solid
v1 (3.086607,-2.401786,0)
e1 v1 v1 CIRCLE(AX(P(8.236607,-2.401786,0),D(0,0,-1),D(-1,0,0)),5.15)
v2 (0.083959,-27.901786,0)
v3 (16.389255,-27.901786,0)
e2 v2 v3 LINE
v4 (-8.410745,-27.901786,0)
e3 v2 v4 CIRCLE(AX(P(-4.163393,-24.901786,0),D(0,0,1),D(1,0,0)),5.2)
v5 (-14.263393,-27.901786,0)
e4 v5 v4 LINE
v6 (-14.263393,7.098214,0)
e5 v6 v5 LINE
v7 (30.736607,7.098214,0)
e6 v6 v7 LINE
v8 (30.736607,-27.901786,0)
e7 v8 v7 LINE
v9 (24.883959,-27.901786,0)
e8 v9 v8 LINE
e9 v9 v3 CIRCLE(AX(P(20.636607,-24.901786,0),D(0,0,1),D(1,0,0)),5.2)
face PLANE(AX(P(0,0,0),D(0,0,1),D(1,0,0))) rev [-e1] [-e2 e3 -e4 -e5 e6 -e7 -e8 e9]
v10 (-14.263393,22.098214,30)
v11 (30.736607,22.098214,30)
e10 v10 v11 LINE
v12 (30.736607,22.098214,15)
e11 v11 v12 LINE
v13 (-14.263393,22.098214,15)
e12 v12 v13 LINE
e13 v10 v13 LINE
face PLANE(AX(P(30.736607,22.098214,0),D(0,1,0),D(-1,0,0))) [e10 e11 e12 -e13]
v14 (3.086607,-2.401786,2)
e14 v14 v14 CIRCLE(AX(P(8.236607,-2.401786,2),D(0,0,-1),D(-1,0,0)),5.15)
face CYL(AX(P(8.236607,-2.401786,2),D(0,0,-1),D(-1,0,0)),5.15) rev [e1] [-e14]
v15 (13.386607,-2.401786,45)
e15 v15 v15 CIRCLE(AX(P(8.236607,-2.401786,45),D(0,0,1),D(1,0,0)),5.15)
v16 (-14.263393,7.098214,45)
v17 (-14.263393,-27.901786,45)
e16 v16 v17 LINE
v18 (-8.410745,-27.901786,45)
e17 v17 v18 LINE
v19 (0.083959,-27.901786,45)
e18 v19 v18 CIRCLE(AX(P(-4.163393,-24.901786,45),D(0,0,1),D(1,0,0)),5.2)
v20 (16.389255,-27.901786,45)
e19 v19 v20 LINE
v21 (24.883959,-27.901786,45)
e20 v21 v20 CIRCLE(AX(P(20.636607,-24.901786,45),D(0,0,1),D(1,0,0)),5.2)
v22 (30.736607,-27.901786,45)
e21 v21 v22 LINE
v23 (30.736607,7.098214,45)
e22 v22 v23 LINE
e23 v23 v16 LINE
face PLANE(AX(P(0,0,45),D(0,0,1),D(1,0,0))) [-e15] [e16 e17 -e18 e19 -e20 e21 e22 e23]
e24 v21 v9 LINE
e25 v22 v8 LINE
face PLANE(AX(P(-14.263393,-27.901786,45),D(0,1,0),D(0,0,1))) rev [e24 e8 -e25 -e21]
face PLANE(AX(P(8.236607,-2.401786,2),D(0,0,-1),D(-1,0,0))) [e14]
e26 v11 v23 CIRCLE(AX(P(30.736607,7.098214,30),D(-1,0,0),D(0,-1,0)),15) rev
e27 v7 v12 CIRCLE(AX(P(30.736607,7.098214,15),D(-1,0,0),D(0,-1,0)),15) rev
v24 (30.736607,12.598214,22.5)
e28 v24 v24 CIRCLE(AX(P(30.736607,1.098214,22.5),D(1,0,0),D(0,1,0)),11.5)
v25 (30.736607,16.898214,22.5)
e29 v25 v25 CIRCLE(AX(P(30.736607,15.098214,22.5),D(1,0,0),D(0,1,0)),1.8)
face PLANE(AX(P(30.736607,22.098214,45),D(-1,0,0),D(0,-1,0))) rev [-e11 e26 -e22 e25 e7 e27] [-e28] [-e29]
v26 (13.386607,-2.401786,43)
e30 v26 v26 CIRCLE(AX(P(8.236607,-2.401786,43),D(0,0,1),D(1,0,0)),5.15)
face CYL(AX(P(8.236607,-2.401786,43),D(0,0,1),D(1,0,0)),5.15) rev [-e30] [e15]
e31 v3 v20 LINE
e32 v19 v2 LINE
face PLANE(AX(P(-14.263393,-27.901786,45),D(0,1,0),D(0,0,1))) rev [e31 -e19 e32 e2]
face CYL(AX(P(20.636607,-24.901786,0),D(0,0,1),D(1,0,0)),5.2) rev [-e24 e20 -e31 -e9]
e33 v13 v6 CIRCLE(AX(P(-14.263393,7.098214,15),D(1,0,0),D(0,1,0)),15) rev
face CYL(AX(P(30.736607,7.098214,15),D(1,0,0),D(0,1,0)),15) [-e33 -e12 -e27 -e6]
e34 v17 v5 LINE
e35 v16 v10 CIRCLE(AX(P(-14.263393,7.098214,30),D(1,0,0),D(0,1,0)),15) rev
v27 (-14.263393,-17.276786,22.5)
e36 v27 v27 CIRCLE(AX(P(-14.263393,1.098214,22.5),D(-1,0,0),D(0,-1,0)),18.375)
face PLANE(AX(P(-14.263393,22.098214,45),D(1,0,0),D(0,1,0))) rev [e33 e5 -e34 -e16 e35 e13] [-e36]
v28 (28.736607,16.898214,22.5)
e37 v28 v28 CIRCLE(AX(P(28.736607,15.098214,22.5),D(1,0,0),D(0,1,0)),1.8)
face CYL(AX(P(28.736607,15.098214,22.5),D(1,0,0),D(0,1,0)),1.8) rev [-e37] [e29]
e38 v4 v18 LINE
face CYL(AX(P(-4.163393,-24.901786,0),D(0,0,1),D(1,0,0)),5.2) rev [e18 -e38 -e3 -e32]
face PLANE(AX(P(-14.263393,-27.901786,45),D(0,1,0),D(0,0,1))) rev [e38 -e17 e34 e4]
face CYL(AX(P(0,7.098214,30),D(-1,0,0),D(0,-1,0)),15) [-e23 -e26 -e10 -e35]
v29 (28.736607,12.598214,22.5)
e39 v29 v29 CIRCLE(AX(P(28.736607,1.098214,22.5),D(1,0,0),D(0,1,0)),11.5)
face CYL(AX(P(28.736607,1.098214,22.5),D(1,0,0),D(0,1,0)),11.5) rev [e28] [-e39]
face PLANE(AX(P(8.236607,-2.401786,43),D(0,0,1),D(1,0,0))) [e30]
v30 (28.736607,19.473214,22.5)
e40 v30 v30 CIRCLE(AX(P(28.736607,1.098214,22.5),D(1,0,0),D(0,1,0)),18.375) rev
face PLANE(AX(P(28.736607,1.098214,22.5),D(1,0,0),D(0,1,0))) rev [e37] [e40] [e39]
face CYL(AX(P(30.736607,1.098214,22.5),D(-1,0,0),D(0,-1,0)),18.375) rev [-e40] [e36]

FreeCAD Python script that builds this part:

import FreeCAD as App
import Part
import Sketcher
Q = App.Units.Quantity


def edges_at(feature, points):
    """Names of the edges that pass closest to the given points."""
    edges = feature.Shape.Edges
    near = lambda p: min(range(len(edges)), key=lambda i: edges[i].distToShape(Part.Vertex(*p))[0])
    return sorted({f"Edge{near(p) + 1}" for p in points})


def add_polygon(sketch, points):
    """Adds a closed chain of lines whose ends are joined by coincident constraints."""
    first, n = sketch.GeometryCount, len(points)
    for a, b in zip(points, points[1:] + points[:1]):
        sketch.addGeometry(Part.LineSegment(App.Vector(*a, 0), App.Vector(*b, 0)), False)
    for i in range(n):
        sketch.addConstraint(Sketcher.Constraint("Coincident", first + i, 2, first + (i + 1) % n, 1))

doc = App.newDocument("Part")
body = doc.addObject("PartDesign::Body", "Body")

# Sketch on XY plane
sketch1 = body.newObject("Sketcher::SketchObject", "Sketch")
sketch1.AttachmentSupport = (doc.getObject("XY_Plane"), [""])
sketch1.MapMode = "FlatFace"
add_polygon(sketch1, [(-14, 22), (-14, -28), (31, -28), (31, 22)])  # lines 0-3
sketch1.addConstraint([
    Sketcher.Constraint("Vertical", 0),
    Sketcher.Constraint("Horizontal", 1),
    Sketcher.Constraint("Vertical", 2),
    Sketcher.Constraint("Horizontal", 3),
    Sketcher.Constraint("DistanceX", 1, 1, 1, 2, Q("45 mm")),
    Sketcher.Constraint("DistanceY", 0, 2, 0, 1, Q("50 mm")),
    Sketcher.Constraint("DistanceX", 0, 2, -1, 1, Q("14.263393 mm")),
    Sketcher.Constraint("DistanceY", 0, 2, -1, 1, Q("27.901786 mm")),
])
pad1 = body.newObject("PartDesign::Pad", "Pad")
pad1.Profile = sketch1
pad1.Length = 45

# Sketch on XY plane
sketch2 = body.newObject("Sketcher::SketchObject", "Sketch001")
sketch2.AttachmentSupport = (doc.getObject("XY_Plane"), [""])
sketch2.MapMode = "FlatFace"
sketch2.AttachmentOffset = App.Placement(App.Vector(0, 0, 45), App.Rotation())
sketch2.addGeometry([
    Part.Circle(App.Vector(-4, -25, 0), App.Vector(0, 0, 1), 5),
    Part.Circle(App.Vector(21, -25, 0), App.Vector(0, 0, 1), 5),
], False)
sketch2.addConstraint([
    Sketcher.Constraint("Equal", 0, 1),
    Sketcher.Constraint("Horizontal", 0, 3, 1, 3),
    Sketcher.Constraint("Diameter", 0, Q("10.4 mm")),
    Sketcher.Constraint("DistanceX", 0, 3, 1, 3, Q("24.8 mm")),
    Sketcher.Constraint("DistanceX", 0, 3, -1, 1, Q("4.163393 mm")),
    Sketcher.Constraint("DistanceY", 0, 3, -1, 1, Q("24.901786 mm")),
])
pocket1 = body.newObject("PartDesign::Pocket", "Pocket")
pocket1.Profile = sketch2
pocket1.Length = 45

# Sketch on XY plane
sketch3 = body.newObject("Sketcher::SketchObject", "Sketch002")
sketch3.AttachmentSupport = (doc.getObject("XY_Plane"), [""])
sketch3.MapMode = "FlatFace"
sketch3.AttachmentOffset = App.Placement(App.Vector(0, 0, 45), App.Rotation())
sketch3.addGeometry(Part.Circle(App.Vector(8, -2, 0), App.Vector(0, 0, 1), 5), False)
sketch3.addConstraint([
    Sketcher.Constraint("Diameter", 0, Q("10.3 mm")),
    Sketcher.Constraint("DistanceX", -1, 1, 0, 3, Q("8.236607 mm")),
    Sketcher.Constraint("DistanceY", 0, 3, -1, 1, Q("2.401786 mm")),
])
pocket2 = body.newObject("PartDesign::Pocket", "Pocket001")
pocket2.Profile = sketch3
pocket2.Length = 2

# Sketch on XY plane
sketch4 = body.newObject("Sketcher::SketchObject", "Sketch003")
sketch4.AttachmentSupport = (doc.getObject("XY_Plane"), [""])
sketch4.MapMode = "FlatFace"
sketch4.addGeometry(Part.Circle(App.Vector(8, -2, 0), App.Vector(0, 0, 1), 5), False)
sketch4.addConstraint([
    Sketcher.Constraint("Diameter", 0, Q("10.3 mm")),
    Sketcher.Constraint("DistanceX", -1, 1, 0, 3, Q("8.236607 mm")),
    Sketcher.Constraint("DistanceY", 0, 3, -1, 1, Q("2.401786 mm")),
])
pocket3 = body.newObject("PartDesign::Pocket", "Pocket002")
pocket3.Profile = sketch4
pocket3.Length = 2
pocket3.Reversed = True

# Sketch on YZ plane
sketch5 = body.newObject("Sketcher::SketchObject", "Sketch004")
sketch5.AttachmentSupport = (doc.getObject("YZ_Plane"), [""])
sketch5.MapMode = "FlatFace"
sketch5.AttachmentOffset = App.Placement(App.Vector(0, 0, -14.263393), App.Rotation())
sketch5.addGeometry(Part.Circle(App.Vector(1, 22, 0), App.Vector(0, 0, 1), 18), False)
sketch5.addConstraint([
    Sketcher.Constraint("Diameter", 0, Q("36.75 mm")),
    Sketcher.Constraint("DistanceY", -1, 1, 0, 3, Q("22.5 mm")),
    Sketcher.Constraint("DistanceX", -1, 1, 0, 3, Q("1.098214 mm")),
])
pocket4 = body.newObject("PartDesign::Pocket", "Pocket003")
pocket4.Profile = sketch5
pocket4.Length = 45
pocket4.Reversed = True

# Sketch on YZ plane
sketch6 = body.newObject("Sketcher::SketchObject", "Sketch005")
sketch6.AttachmentSupport = (doc.getObject("YZ_Plane"), [""])
sketch6.MapMode = "FlatFace"
sketch6.AttachmentOffset = App.Placement(App.Vector(0, 0, -14.263393), App.Rotation())
add_polygon(sketch6, [(22, 0), (15, 0), (15, 45), (22, 45)])  # lines 0-3
sketch6.addConstraint([
    Sketcher.Constraint("Horizontal", 0),
    Sketcher.Constraint("Vertical", 1),
    Sketcher.Constraint("Horizontal", 2),
    Sketcher.Constraint("Vertical", 3),
    Sketcher.Constraint("PointOnObject", 0, 2, -1),
    Sketcher.Constraint("DistanceY", 1, 1, 1, 2, Q("45 mm")),
    Sketcher.Constraint("DistanceX", 0, 2, 0, 1, Q("6.667471 mm")),
    Sketcher.Constraint("DistanceX", -1, 1, 0, 2, Q("15.430743 mm")),
])
pocket5 = body.newObject("PartDesign::Pocket", "Pocket004")
pocket5.Profile = sketch6
pocket5.Length = 46
pocket5.Reversed = True

# Sketch on YZ plane
sketch7 = body.newObject("Sketcher::SketchObject", "Sketch006")
sketch7.AttachmentSupport = (doc.getObject("YZ_Plane"), [""])
sketch7.MapMode = "FlatFace"
sketch7.AttachmentOffset = App.Placement(App.Vector(0, 0, -14.263393), App.Rotation())
add_polygon(sketch7, [(22, 0), (15, 0), (15, 45), (22, 45)])  # lines 0-3
sketch7.addConstraint([
    Sketcher.Constraint("Horizontal", 0),
    Sketcher.Constraint("Vertical", 1),
    Sketcher.Constraint("Horizontal", 2),
    Sketcher.Constraint("Vertical", 3),
    Sketcher.Constraint("PointOnObject", 0, 2, -1),
    Sketcher.Constraint("DistanceY", 1, 1, 1, 2, Q("45 mm")),
    Sketcher.Constraint("DistanceX", 0, 2, 0, 1, Q("6.667471 mm")),
    Sketcher.Constraint("DistanceX", -1, 1, 0, 2, Q("15.430743 mm")),
])
pad2 = body.newObject("PartDesign::Pad", "Pad001")
pad2.Profile = sketch7
pad2.Length = 45

# Sketch on YZ plane
sketch8 = body.newObject("Sketcher::SketchObject", "Sketch007")
sketch8.AttachmentSupport = (doc.getObject("YZ_Plane"), [""])
sketch8.MapMode = "FlatFace"
sketch8.AttachmentOffset = App.Placement(App.Vector(0, 0, -14.263393), App.Rotation())
sketch8.addGeometry(Part.Circle(App.Vector(1, 22, 0), App.Vector(0, 0, 1), 18), False)
sketch8.addConstraint([
    Sketcher.Constraint("Diameter", 0, Q("36.75 mm")),
    Sketcher.Constraint("DistanceY", -1, 1, 0, 3, Q("22.5 mm")),
    Sketcher.Constraint("DistanceX", -1, 1, 0, 3, Q("1.098214 mm")),
])
pocket6 = body.newObject("PartDesign::Pocket", "Pocket005")
pocket6.Profile = sketch8
pocket6.Length = 45
pocket6.Reversed = True
doc.recompute()

fillet = body.newObject("PartDesign::Fillet", "Fillet")
fillet.Base = (pocket6, edges_at(pocket6, [(8.237, 22.098, 0), (8.237, 22.098, 45)]))
fillet.Radius = 15

# Sketch on YZ plane
sketch9 = body.newObject("Sketcher::SketchObject", "Sketch008")
sketch9.AttachmentSupport = (doc.getObject("YZ_Plane"), [""])
sketch9.MapMode = "FlatFace"
sketch9.AttachmentOffset = App.Placement(App.Vector(0, 0, 30.736607), App.Rotation())
sketch9.addGeometry(Part.Circle(App.Vector(1, 22, 0), App.Vector(0, 0, 1), 18), False)
sketch9.addConstraint([
    Sketcher.Constraint("Diameter", 0, Q("36.75 mm")),
    Sketcher.Constraint("DistanceY", -1, 1, 0, 3, Q("22.5 mm")),
    Sketcher.Constraint("DistanceX", -1, 1, 0, 3, Q("1.098214 mm")),
])
pad3 = body.newObject("PartDesign::Pad", "Pad002")
pad3.Profile = sketch9
pad3.Length = 2
pad3.Reversed = True

# Sketch on YZ plane
sketch10 = body.newObject("Sketcher::SketchObject", "Sketch009")
sketch10.AttachmentSupport = (doc.getObject("YZ_Plane"), [""])
sketch10.MapMode = "FlatFace"
sketch10.AttachmentOffset = App.Placement(App.Vector(0, 0, 30.736607), App.Rotation())
sketch10.addGeometry(Part.Circle(App.Vector(1, 22, 0), App.Vector(0, 0, 1), 12), False)
sketch10.addConstraint([
    Sketcher.Constraint("Diameter", 0, Q("23 mm")),
    Sketcher.Constraint("DistanceY", -1, 1, 0, 3, Q("22.5 mm")),
    Sketcher.Constraint("DistanceX", -1, 1, 0, 3, Q("1.098214 mm")),
])
pocket7 = body.newObject("PartDesign::Pocket", "Pocket006")
pocket7.Profile = sketch10
pocket7.Length = 2

# Sketch on YZ plane
sketch11 = body.newObject("Sketcher::SketchObject", "Sketch010")
sketch11.AttachmentSupport = (doc.getObject("YZ_Plane"), [""])
sketch11.MapMode = "FlatFace"
sketch11.AttachmentOffset = App.Placement(App.Vector(0, 0, 30.736607), App.Rotation())
sketch11.addGeometry(Part.Circle(App.Vector(15.1, 22.5, 0), App.Vector(0, 0, 1), 1.8), False)
sketch11.addConstraint([
    Sketcher.Constraint("Diameter", 0, Q("3.6 mm")),
    Sketcher.Constraint("DistanceY", -1, 1, 0, 3, Q("22.5 mm")),
    Sketcher.Constraint("DistanceX", -1, 1, 0, 3, Q("15.098214 mm")),
])
pocket8 = body.newObject("PartDesign::Pocket", "Pocket007")
pocket8.Profile = sketch11
pocket8.Length = 2

doc.recompute()
